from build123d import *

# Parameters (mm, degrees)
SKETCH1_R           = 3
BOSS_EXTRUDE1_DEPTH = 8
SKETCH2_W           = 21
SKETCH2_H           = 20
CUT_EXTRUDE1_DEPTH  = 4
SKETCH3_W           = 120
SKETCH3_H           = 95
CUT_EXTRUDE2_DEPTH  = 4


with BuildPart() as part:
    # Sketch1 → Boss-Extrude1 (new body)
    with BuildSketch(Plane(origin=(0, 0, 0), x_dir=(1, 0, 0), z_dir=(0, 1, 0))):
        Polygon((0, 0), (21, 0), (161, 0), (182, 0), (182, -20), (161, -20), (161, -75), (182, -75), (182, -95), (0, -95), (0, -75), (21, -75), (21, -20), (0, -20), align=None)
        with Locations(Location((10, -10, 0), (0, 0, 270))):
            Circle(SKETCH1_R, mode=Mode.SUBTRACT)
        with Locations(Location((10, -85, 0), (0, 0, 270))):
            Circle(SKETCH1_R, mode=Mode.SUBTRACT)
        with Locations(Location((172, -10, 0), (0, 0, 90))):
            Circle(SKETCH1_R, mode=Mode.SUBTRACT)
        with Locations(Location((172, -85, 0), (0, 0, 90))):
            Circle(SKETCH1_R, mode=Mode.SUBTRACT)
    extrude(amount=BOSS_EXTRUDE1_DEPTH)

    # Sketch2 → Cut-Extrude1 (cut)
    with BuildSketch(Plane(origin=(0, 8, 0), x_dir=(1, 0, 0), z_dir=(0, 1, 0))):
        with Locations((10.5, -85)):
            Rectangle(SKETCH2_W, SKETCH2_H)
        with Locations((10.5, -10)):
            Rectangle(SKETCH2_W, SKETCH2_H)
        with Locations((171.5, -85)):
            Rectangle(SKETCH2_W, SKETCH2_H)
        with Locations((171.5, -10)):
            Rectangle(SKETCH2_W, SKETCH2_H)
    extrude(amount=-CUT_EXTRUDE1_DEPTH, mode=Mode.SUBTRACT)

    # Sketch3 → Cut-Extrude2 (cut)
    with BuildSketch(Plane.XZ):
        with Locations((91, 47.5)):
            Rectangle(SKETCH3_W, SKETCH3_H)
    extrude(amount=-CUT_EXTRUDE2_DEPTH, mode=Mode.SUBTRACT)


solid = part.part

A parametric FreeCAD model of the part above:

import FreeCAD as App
import Part
import Sketcher
from FreeCAD import Vector


def add_polygon(sketch, points):
    """Adds a closed chain of lines whose ends are joined by coincident constraints."""
    first, n = sketch.GeometryCount, len(points)
    for a, b in zip(points, points[1:] + points[:1]):
        sketch.addGeometry(Part.LineSegment(App.Vector(*a, 0), App.Vector(*b, 0)), False)
    for i in range(n):
        sketch.addConstraint(Sketcher.Constraint("Coincident", first + i, 2, first + (i + 1) % n, 1))

doc = App.newDocument("Part")
body = doc.addObject("PartDesign::Body", "Body")

# Sketch on XZ plane
sketch1 = doc.addObject("Sketcher::SketchObject", "Sketch")
body.addObject(sketch1)
sketch1.AttachmentSupport = (doc.XZ_Plane, [""])
sketch1.MapMode = "FlatFace"
add_polygon(sketch1, [(182, 0), (0, 0), (0, 20), (21, 20), (21, 75), (0, 75), (0, 95), (182, 95), (182, 75), (161, 75), (161, 20), (182, 20)])  # lines 0-11
sketch1.addGeometry(Part.Circle(Vector(172, 85, 0), Vector(0, 0, 1), 3), False)  # 12
sketch1.addGeometry(Part.Circle(Vector(10, 85, 0), Vector(0, 0, 1), 3), False)  # 13
sketch1.addGeometry(Part.Circle(Vector(172, 10, 0), Vector(0, 0, 1), 3), False)  # 14
sketch1.addGeometry(Part.Circle(Vector(10, 10, 0), Vector(0, 0, 1), 3), False)  # 15
sketch1.addConstraint(Sketcher.Constraint("Horizontal", 0))
sketch1.addConstraint(Sketcher.Constraint("Vertical", 1))
sketch1.addConstraint(Sketcher.Constraint("Horizontal", 2))
sketch1.addConstraint(Sketcher.Constraint("Vertical", 3))
sketch1.addConstraint(Sketcher.Constraint("Horizontal", 4))
sketch1.addConstraint(Sketcher.Constraint("Vertical", 5))
sketch1.addConstraint(Sketcher.Constraint("Horizontal", 6))
sketch1.addConstraint(Sketcher.Constraint("Vertical", 7))
sketch1.addConstraint(Sketcher.Constraint("Horizontal", 8))
sketch1.addConstraint(Sketcher.Constraint("Vertical", 9))
sketch1.addConstraint(Sketcher.Constraint("Horizontal", 10))
sketch1.addConstraint(Sketcher.Constraint("Vertical", 11))
sketch1.addConstraint(Sketcher.Constraint("Coincident", 0, 2, -1, 1))
sketch1.addConstraint(Sketcher.Constraint("Equal", 12, 13))
sketch1.addConstraint(Sketcher.Constraint("Equal", 13, 14))
sketch1.addConstraint(Sketcher.Constraint("Equal", 14, 15))
sketch1.addConstraint(Sketcher.Constraint("PointOnObject", 4, 2, -2))
sketch1.addConstraint(Sketcher.Constraint("Horizontal", 12, 3, 13, 3))
sketch1.addConstraint(Sketcher.Constraint("Horizontal", 14, 3, 15, 3))
sketch1.addConstraint(Sketcher.Constraint("Horizontal", 4, 2, 7, 2))
sketch1.addConstraint(Sketcher.Constraint("Horizontal", 2, 2, 9, 2))
sketch1.addConstraint(Sketcher.Constraint("Vertical", 12, 3, 14, 3))
sketch1.addConstraint(Sketcher.Constraint("Vertical", 13, 3, 15, 3))
sketch1.addConstraint(Sketcher.Constraint("Vertical", 7, 2, 10, 2))
sketch1.addConstraint(Sketcher.Constraint("Equal", 4, 8))
sketch1.addConstraint(Sketcher.Constraint("Equal", 1, 5))
sketch1.addConstraint(Sketcher.Constraint("Diameter", 12, 6.0))
sketch1.addConstraint(Sketcher.Constraint("DistanceX", 0, 2, 0, 1, 182.0))
sketch1.addConstraint(Sketcher.Constraint("DistanceX", 2, 1, 2, 2, 21.0))
sketch1.addConstraint(Sketcher.Constraint("DistanceY", 1, 1, 1, 2, 20.0))
sketch1.addConstraint(Sketcher.Constraint("DistanceY", 3, 1, 3, 2, 55.0))
sketch1.addConstraint(Sketcher.Constraint("DistanceX", -1, 1, 12, 3, 172.0))
sketch1.addConstraint(Sketcher.Constraint("DistanceY", -1, 1, 12, 3, 85.0))
sketch1.addConstraint(Sketcher.Constraint("DistanceX", -1, 1, 13, 3, 10.0))
sketch1.addConstraint(Sketcher.Constraint("DistanceY", -1, 1, 14, 3, 10.0))
pad1 = doc.addObject("PartDesign::Pad", "Pad")
body.addObject(pad1)
pad1.Profile = sketch1
pad1.Length = 8
pad1.Reversed = True

# Sketch on XZ plane
sketch2 = doc.addObject("Sketcher::SketchObject", "Sketch001")
body.addObject(sketch2)
sketch2.AttachmentSupport = (doc.XZ_Plane, [""])
sketch2.MapMode = "FlatFace"
sketch2.AttachmentOffset = App.Placement(Vector(0, 0, -8), App.Rotation())
add_polygon(sketch2, [(0, 75), (0, 95), (21, 95), (21, 75)])  # lines 0-3
add_polygon(sketch2, [(0, 0), (0, 20), (21, 20), (21, 0)])  # lines 4-7
add_polygon(sketch2, [(161, 75), (161, 95), (182, 95), (182, 75)])  # lines 8-11
add_polygon(sketch2, [(161, 0), (161, 20), (182, 20), (182, 0)])  # lines 12-15
sketch2.addConstraint(Sketcher.Constraint("Vertical", 0))
sketch2.addConstraint(Sketcher.Constraint("Horizontal", 1))
sketch2.addConstraint(Sketcher.Constraint("Vertical", 2))
sketch2.addConstraint(Sketcher.Constraint("Horizontal", 3))
sketch2.addConstraint(Sketcher.Constraint("Vertical", 4))
sketch2.addConstraint(Sketcher.Constraint("Horizontal", 5))
sketch2.addConstraint(Sketcher.Constraint("Vertical", 6))
sketch2.addConstraint(Sketcher.Constraint("Horizontal", 7))
sketch2.addConstraint(Sketcher.Constraint("Vertical", 8))
sketch2.addConstraint(Sketcher.Constraint("Horizontal", 9))
sketch2.addConstraint(Sketcher.Constraint("Vertical", 10))
sketch2.addConstraint(Sketcher.Constraint("Horizontal", 11))
sketch2.addConstraint(Sketcher.Constraint("Vertical", 12))
sketch2.addConstraint(Sketcher.Constraint("Horizontal", 13))
sketch2.addConstraint(Sketcher.Constraint("Vertical", 14))
sketch2.addConstraint(Sketcher.Constraint("Horizontal", 15))
sketch2.addConstraint(Sketcher.Constraint("Coincident", 7, 2, -1, 1))
sketch2.addConstraint(Sketcher.Constraint("PointOnObject", 0, 2, -2))
sketch2.addConstraint(Sketcher.Constraint("PointOnObject", 14, 2, -1))
sketch2.addConstraint(Sketcher.Constraint("Horizontal", 1, 2, 8, 2))
sketch2.addConstraint(Sketcher.Constraint("Horizontal", 3, 2, 10, 2))
sketch2.addConstraint(Sketcher.Constraint("Horizontal", 5, 2, 12, 2))
sketch2.addConstraint(Sketcher.Constraint("Vertical", 2, 2, 5, 2))
sketch2.addConstraint(Sketcher.Constraint("Vertical", 11, 2, 12, 2))
sketch2.addConstraint(Sketcher.Constraint("Vertical", 10, 2, 13, 2))
sketch2.addConstraint(Sketcher.Constraint("Equal", 7, 9))
sketch2.addConstraint(Sketcher.Constraint("Equal", 2, 4))
sketch2.addConstraint(Sketcher.Constraint("DistanceX", 1, 1, 1, 2, 21.0))
sketch2.addConstraint(Sketcher.Constraint("DistanceY", 0, 1, 0, 2, 20.0))
sketch2.addConstraint(Sketcher.Constraint("DistanceY", -1, 1, 0, 2, 95.0))
sketch2.addConstraint(Sketcher.Constraint("DistanceX", -1, 1, 8, 2, 161.0))
pocket1 = doc.addObject("PartDesign::Pocket", "Pocket")
body.addObject(pocket1)
pocket1.Profile = sketch2
pocket1.Length = 4
pocket1.Reversed = True

# Sketch on XZ plane
sketch3 = doc.addObject("Sketcher::SketchObject", "Sketch002")
body.addObject(sketch3)
sketch3.AttachmentSupport = (doc.XZ_Plane, [""])
sketch3.MapMode = "FlatFace"
add_polygon(sketch3, [(31, 95), (31, 0), (151, 0), (151, 95)])  # lines 0-3
sketch3.addConstraint(Sketcher.Constraint("Vertical", 0))
sketch3.addConstraint(Sketcher.Constraint("Horizontal", 1))
sketch3.addConstraint(Sketcher.Constraint("Vertical", 2))
sketch3.addConstraint(Sketcher.Constraint("Horizontal", 3))
sketch3.addConstraint(Sketcher.Constraint("PointOnObject", 0, 2, -1))
sketch3.addConstraint(Sketcher.Constraint("DistanceX", 1, 1, 1, 2, 120.0))
sketch3.addConstraint(Sketcher.Constraint("DistanceY", 0, 2, 0, 1, 95.0))
sketch3.addConstraint(Sketcher.Constraint("DistanceX", -1, 1, 0, 2, 31.0))
pocket2 = doc.addObject("PartDesign::Pocket", "Pocket001")
body.addObject(pocket2)
pocket2.Profile = sketch3
pocket2.Length = 4

doc.recompute()
